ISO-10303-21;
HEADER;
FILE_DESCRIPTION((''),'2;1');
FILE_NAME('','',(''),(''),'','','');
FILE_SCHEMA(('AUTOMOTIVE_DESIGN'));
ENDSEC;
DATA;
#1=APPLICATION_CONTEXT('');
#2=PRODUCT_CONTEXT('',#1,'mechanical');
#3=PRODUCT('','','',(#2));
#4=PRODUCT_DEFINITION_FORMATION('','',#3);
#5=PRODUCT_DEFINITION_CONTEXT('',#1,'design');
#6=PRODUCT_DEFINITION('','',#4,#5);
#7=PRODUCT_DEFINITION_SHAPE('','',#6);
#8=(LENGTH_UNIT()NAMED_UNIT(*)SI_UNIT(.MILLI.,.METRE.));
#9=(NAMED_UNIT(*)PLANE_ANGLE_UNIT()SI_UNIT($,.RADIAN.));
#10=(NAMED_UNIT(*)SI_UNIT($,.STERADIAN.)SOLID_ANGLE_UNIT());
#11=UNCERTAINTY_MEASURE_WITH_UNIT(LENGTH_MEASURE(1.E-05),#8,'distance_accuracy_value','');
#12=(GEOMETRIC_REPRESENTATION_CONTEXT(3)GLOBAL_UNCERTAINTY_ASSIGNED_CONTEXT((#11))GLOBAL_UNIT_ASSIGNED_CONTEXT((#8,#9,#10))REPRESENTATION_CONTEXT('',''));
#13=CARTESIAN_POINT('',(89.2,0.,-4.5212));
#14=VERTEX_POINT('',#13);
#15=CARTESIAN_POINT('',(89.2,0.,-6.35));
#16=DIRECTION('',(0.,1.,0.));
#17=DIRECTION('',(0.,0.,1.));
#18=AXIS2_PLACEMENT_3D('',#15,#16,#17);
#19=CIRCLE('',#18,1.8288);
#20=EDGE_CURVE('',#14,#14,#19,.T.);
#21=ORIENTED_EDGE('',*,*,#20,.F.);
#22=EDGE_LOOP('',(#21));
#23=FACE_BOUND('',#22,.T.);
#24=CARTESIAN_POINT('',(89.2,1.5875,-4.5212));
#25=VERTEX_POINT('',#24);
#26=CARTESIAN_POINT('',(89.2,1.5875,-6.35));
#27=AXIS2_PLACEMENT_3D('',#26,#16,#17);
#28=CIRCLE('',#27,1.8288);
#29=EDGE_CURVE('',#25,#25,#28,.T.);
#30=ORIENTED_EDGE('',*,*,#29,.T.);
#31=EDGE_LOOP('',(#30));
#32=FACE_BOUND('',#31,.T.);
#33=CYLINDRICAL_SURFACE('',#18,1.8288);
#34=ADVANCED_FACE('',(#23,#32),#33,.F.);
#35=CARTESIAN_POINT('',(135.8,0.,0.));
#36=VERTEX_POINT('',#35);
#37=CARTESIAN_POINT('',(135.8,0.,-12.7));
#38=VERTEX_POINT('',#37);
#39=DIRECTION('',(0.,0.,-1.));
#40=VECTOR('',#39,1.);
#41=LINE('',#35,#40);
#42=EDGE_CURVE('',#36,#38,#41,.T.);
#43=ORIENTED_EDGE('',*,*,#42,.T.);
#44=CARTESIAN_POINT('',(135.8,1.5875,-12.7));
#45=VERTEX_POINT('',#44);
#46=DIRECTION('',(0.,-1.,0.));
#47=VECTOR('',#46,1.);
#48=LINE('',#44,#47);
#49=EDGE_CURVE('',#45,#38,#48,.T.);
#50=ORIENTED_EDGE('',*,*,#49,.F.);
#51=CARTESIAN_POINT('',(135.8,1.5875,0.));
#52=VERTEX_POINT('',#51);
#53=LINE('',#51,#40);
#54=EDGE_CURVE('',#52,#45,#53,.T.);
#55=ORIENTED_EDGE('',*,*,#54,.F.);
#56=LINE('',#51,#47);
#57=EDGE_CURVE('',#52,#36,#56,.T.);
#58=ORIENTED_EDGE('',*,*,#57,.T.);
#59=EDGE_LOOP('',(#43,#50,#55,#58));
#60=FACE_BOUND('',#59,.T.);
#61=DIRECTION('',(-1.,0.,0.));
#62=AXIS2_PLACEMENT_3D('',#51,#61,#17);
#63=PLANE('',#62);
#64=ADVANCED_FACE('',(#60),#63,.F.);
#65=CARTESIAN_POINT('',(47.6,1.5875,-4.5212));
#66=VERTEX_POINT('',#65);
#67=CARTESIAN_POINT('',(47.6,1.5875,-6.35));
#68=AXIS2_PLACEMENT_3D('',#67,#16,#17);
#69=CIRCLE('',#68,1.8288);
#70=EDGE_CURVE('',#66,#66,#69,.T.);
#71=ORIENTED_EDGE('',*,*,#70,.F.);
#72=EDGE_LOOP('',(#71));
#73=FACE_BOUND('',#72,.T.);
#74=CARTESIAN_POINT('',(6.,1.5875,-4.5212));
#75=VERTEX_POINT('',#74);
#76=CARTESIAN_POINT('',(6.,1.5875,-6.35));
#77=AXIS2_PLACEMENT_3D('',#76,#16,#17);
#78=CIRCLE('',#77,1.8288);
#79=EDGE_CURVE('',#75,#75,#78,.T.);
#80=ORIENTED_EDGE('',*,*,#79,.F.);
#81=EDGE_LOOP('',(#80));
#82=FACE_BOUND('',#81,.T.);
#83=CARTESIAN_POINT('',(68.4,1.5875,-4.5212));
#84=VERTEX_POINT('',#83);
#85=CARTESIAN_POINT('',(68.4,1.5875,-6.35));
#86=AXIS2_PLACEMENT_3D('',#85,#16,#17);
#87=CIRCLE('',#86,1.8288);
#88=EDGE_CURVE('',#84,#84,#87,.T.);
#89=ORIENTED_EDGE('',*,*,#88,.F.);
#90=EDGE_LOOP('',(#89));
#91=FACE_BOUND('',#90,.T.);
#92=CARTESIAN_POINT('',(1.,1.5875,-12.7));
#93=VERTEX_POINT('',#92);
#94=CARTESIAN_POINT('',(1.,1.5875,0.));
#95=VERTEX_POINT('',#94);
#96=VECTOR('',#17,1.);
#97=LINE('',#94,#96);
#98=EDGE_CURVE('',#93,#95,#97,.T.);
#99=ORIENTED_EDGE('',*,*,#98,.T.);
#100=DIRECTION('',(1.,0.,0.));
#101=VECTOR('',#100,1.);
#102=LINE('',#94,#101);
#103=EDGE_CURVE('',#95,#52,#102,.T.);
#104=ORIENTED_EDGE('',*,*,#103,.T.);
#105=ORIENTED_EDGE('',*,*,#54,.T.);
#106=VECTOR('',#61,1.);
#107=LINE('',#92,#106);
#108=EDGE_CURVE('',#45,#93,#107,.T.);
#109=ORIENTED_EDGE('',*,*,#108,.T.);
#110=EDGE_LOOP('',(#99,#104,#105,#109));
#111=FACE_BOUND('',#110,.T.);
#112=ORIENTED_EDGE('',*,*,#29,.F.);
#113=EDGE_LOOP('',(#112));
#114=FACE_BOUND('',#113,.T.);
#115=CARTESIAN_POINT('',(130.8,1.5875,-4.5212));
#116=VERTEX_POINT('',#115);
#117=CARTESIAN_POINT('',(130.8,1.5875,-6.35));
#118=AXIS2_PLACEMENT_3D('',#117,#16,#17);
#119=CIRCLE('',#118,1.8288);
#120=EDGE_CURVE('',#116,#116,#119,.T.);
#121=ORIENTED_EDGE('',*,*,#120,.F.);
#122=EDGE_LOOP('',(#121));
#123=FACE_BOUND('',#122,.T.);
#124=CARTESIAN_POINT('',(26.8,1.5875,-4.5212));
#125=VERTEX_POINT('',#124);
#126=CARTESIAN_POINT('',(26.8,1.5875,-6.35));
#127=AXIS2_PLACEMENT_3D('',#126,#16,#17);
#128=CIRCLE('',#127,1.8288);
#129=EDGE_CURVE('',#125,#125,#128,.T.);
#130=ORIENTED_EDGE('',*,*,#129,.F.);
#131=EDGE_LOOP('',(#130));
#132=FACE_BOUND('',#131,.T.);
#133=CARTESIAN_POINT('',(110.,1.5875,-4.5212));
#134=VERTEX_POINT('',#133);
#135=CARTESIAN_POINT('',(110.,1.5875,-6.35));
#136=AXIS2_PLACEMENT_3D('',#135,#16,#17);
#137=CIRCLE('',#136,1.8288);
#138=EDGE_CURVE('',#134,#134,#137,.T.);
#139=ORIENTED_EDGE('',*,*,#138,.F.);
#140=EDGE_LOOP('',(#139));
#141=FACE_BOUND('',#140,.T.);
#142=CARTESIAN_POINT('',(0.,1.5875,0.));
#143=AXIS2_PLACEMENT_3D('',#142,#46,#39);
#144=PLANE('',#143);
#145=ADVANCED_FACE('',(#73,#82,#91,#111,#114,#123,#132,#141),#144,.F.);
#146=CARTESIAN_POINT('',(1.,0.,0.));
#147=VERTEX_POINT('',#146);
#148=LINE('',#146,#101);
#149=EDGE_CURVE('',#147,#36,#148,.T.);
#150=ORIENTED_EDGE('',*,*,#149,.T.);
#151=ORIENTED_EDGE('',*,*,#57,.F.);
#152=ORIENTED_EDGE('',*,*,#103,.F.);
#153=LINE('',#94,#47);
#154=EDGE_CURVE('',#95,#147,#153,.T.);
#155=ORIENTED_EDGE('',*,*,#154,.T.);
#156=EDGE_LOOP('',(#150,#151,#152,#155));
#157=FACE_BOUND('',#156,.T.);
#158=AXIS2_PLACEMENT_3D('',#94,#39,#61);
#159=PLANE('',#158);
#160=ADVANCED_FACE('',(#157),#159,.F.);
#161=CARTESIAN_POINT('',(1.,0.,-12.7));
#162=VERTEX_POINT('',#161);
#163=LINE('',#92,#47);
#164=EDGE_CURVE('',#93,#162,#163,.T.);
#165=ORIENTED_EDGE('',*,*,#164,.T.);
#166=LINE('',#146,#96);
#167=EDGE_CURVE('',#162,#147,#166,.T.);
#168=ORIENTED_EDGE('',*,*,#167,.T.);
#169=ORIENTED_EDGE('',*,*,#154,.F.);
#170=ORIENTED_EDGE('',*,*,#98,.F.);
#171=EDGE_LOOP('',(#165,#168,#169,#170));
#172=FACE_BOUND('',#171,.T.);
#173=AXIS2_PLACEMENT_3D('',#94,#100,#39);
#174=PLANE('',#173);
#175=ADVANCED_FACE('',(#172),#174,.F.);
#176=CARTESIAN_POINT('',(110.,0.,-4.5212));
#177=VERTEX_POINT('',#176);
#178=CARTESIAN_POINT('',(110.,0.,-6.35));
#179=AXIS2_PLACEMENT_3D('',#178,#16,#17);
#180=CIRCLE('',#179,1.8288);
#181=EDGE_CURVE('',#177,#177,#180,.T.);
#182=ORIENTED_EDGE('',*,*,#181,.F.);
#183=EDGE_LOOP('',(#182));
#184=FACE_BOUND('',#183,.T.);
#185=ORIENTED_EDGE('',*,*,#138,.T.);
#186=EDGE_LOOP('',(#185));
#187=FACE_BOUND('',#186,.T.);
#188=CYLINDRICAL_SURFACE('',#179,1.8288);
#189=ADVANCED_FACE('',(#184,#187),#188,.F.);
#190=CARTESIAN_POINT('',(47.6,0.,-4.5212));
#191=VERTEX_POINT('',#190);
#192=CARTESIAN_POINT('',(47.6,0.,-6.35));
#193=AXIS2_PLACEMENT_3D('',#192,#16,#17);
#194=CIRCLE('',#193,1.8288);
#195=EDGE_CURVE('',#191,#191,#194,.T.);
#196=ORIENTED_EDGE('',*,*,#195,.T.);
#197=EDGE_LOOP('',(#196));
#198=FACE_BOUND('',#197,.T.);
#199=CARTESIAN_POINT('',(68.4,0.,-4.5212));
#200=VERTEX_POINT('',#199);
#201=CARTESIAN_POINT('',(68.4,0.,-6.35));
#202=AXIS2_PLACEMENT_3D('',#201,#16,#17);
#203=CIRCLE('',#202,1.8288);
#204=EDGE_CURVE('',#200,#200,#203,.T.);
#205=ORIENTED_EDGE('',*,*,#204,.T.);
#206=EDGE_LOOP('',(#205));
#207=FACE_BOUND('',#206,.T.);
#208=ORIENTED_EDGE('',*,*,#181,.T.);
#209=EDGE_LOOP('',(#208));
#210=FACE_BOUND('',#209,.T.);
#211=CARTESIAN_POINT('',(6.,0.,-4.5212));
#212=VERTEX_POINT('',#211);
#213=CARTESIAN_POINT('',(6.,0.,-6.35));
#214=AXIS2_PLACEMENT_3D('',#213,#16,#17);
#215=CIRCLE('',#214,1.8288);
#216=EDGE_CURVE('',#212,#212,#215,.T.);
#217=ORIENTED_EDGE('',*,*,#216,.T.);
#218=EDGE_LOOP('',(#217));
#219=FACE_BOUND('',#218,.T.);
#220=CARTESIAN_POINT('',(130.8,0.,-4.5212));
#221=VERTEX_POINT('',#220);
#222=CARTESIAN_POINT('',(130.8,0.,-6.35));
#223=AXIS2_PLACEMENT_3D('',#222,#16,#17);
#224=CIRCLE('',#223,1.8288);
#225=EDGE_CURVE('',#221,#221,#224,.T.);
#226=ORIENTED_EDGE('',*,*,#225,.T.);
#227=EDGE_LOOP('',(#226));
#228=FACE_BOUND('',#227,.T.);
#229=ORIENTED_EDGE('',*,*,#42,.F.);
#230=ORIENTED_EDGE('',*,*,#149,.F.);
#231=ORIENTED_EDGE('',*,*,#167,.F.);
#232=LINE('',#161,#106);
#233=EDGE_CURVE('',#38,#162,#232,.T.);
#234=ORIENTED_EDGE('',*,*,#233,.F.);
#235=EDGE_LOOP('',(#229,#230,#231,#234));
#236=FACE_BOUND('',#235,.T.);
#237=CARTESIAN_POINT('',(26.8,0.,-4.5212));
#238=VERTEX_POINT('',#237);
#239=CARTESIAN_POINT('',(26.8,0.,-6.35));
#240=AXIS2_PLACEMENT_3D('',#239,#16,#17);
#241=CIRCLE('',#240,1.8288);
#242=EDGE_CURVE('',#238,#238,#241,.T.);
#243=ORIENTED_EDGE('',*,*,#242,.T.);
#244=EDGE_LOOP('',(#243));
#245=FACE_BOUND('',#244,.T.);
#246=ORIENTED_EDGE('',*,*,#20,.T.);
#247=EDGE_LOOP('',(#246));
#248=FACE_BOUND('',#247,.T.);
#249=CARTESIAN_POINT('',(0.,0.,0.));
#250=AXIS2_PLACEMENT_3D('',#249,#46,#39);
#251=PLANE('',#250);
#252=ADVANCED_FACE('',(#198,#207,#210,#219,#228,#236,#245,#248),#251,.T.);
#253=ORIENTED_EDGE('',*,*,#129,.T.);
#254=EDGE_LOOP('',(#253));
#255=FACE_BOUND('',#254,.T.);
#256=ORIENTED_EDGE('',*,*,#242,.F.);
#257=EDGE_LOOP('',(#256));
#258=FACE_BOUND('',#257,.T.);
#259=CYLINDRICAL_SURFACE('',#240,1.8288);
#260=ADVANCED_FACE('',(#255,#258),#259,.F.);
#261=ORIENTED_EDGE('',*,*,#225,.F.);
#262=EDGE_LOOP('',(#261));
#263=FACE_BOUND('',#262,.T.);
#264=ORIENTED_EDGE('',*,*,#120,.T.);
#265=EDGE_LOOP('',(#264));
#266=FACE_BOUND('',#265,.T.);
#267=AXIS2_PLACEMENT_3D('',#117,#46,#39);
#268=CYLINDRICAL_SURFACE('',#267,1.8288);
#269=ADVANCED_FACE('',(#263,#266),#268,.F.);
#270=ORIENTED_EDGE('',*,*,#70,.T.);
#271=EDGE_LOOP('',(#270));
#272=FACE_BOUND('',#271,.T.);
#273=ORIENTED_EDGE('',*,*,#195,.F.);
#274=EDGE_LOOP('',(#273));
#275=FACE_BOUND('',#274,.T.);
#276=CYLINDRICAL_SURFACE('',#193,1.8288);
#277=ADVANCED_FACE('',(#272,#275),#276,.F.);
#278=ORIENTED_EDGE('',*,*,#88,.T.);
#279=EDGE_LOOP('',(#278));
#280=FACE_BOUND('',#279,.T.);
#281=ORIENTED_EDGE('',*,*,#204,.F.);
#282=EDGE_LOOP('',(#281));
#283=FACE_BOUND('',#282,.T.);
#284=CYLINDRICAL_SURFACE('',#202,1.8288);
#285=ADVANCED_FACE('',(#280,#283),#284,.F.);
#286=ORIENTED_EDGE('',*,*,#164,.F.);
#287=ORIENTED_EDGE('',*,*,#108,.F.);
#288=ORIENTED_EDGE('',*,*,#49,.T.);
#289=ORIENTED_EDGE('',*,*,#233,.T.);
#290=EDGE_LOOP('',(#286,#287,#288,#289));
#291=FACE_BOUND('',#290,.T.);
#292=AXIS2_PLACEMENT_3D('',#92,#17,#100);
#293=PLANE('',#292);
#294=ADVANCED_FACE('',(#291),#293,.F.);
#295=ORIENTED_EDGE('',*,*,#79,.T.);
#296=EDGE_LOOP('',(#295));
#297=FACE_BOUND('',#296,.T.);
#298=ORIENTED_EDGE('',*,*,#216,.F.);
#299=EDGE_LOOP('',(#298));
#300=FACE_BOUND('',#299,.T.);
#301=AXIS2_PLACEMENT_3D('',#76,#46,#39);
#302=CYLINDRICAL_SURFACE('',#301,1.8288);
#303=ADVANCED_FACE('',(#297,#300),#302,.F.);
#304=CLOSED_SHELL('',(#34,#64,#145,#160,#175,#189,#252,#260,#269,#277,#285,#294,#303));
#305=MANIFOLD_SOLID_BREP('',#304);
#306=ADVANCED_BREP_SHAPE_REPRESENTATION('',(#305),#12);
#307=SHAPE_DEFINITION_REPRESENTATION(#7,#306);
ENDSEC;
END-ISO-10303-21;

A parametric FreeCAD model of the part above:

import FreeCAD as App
import Part
import Sketcher
from FreeCAD import Vector
Q = App.Units.Quantity

doc = App.newDocument("Part")
body = doc.addObject("PartDesign::Body", "Body")

sketch1 = body.newObject("Sketcher::SketchObject", "Sketch")
sketch1.AttachmentSupport = (doc.getObject("XZ_Plane"), [""])
sketch1.MapMode = "FlatFace"
sketch1.addGeometry(Part.LineSegment(Vector(1, -12.7, 0), Vector(1, 0, 0)), False)
sketch1.addGeometry(Part.LineSegment(Vector(1, 0, 0), Vector(135.8, 0, 0)), False)
sketch1.addGeometry(Part.LineSegment(Vector(135.8, 0, 0), Vector(135.8, -12.7, 0)), False)
sketch1.addGeometry(Part.LineSegment(Vector(135.8, -12.7, 0), Vector(1, -12.7, 0)), False)
sketch1.addGeometry(Part.Circle(Vector(6, -6.3, 0), Vector(0, 0, 1), 1.8), False)
sketch1.addGeometry(Part.Circle(Vector(130.8, -6.3, 0), Vector(0, 0, 1), 1.8), False)
sketch1.addConstraint(Sketcher.Constraint("Coincident", 0, 2, 1, 1))
sketch1.addConstraint(Sketcher.Constraint("Coincident", 1, 2, 2, 1))
sketch1.addConstraint(Sketcher.Constraint("Coincident", 2, 2, 3, 1))
sketch1.addConstraint(Sketcher.Constraint("Coincident", 3, 2, 0, 1))
sketch1.addConstraint(Sketcher.Constraint("Vertical", 0))
sketch1.addConstraint(Sketcher.Constraint("Horizontal", 1))
sketch1.addConstraint(Sketcher.Constraint("Vertical", 2))
sketch1.addConstraint(Sketcher.Constraint("Horizontal", 3))
sketch1.addConstraint(Sketcher.Constraint("Equal", 4, 5))
sketch1.addConstraint(Sketcher.Constraint("PointOnObject", 0, 2, -1))
sketch1.addConstraint(Sketcher.Constraint("Horizontal", 4, 3, 5, 3))
sketch1.addConstraint(Sketcher.Constraint("Diameter", 4, Q("0.144 in")))
sketch1.addConstraint(Sketcher.Constraint("DistanceY", 0, 1, 0, 2, Q("0.5 in")))
sketch1.addConstraint(Sketcher.Constraint("DistanceY", 4, 3, -1, 1, Q("0.25 in")))
sketch1.addConstraint(Sketcher.Constraint("DistanceX", 1, 1, 1, 2, Q("134.8 mm")))
sketch1.addConstraint(Sketcher.Constraint("DistanceX", -1, 1, 4, 3, Q("6 mm")))
sketch1.addConstraint(Sketcher.Constraint("DistanceX", -1, 1, 5, 3, Q("130.8 mm")))
sketch1.addConstraint(Sketcher.Constraint("DistanceX", -1, 1, 0, 2, Q("1 mm")))
pad1 = body.newObject("PartDesign::Pad", "Pad")
pad1.Profile = sketch1
pad1.Length = Q("0.0625 in")
pad1.Reversed = True

sketch2 = body.newObject("Sketcher::SketchObject", "Sketch001")
sketch2.AttachmentSupport = (doc.getObject("XZ_Plane"), [""])
sketch2.MapMode = "FlatFace"
sketch2.AttachmentOffset = App.Placement(Vector(0, 0, -0.0625 * 25.4), App.Rotation())
sketch2.addGeometry(Part.Circle(Vector(26.8, -6.3, 0), Vector(0, 0, 1), 1.8), False)
sketch2.addGeometry(Part.Circle(Vector(47.6, -6.3, 0), Vector(0, 0, 1), 1.8), False)
sketch2.addGeometry(Part.Circle(Vector(68.4, -6.3, 0), Vector(0, 0, 1), 1.8), False)
sketch2.addGeometry(Part.Circle(Vector(89.2, -6.3, 0), Vector(0, 0, 1), 1.8), False)
sketch2.addGeometry(Part.Circle(Vector(110, -6.3, 0), Vector(0, 0, 1), 1.8), False)
sketch2.addConstraint(Sketcher.Constraint("Equal", 0, 1))
sketch2.addConstraint(Sketcher.Constraint("Equal", 1, 2))
sketch2.addConstraint(Sketcher.Constraint("Equal", 2, 3))
sketch2.addConstraint(Sketcher.Constraint("Equal", 3, 4))
sketch2.addConstraint(Sketcher.Constraint("Horizontal", 0, 3, 1, 3))
sketch2.addConstraint(Sketcher.Constraint("Horizontal", 1, 3, 2, 3))
sketch2.addConstraint(Sketcher.Constraint("Horizontal", 2, 3, 3, 3))
sketch2.addConstraint(Sketcher.Constraint("Horizontal", 3, 3, 4, 3))
sketch2.addConstraint(Sketcher.Constraint("Diameter", 0, Q("0.144 in")))
sketch2.addConstraint(Sketcher.Constraint("DistanceY", 0, 3, -1, 1, Q("0.25 in")))
sketch2.addConstraint(Sketcher.Constraint("DistanceX", -1, 1, 0, 3, Q("26.8 mm")))
sketch2.addConstraint(Sketcher.Constraint("DistanceX", -1, 1, 1, 3, Q("47.6 mm")))
sketch2.addConstraint(Sketcher.Constraint("DistanceX", -1, 1, 2, 3, Q("68.4 mm")))
sketch2.addConstraint(Sketcher.Constraint("DistanceX", -1, 1, 3, 3, Q("89.2 mm")))
sketch2.addConstraint(Sketcher.Constraint("DistanceX", -1, 1, 4, 3, Q("110 mm")))
pocket1 = body.newObject("PartDesign::Pocket", "Pocket")
pocket1.Profile = sketch2
pocket1.Type = "ThroughAll"
pocket1.Reversed = True

doc.recompute()
